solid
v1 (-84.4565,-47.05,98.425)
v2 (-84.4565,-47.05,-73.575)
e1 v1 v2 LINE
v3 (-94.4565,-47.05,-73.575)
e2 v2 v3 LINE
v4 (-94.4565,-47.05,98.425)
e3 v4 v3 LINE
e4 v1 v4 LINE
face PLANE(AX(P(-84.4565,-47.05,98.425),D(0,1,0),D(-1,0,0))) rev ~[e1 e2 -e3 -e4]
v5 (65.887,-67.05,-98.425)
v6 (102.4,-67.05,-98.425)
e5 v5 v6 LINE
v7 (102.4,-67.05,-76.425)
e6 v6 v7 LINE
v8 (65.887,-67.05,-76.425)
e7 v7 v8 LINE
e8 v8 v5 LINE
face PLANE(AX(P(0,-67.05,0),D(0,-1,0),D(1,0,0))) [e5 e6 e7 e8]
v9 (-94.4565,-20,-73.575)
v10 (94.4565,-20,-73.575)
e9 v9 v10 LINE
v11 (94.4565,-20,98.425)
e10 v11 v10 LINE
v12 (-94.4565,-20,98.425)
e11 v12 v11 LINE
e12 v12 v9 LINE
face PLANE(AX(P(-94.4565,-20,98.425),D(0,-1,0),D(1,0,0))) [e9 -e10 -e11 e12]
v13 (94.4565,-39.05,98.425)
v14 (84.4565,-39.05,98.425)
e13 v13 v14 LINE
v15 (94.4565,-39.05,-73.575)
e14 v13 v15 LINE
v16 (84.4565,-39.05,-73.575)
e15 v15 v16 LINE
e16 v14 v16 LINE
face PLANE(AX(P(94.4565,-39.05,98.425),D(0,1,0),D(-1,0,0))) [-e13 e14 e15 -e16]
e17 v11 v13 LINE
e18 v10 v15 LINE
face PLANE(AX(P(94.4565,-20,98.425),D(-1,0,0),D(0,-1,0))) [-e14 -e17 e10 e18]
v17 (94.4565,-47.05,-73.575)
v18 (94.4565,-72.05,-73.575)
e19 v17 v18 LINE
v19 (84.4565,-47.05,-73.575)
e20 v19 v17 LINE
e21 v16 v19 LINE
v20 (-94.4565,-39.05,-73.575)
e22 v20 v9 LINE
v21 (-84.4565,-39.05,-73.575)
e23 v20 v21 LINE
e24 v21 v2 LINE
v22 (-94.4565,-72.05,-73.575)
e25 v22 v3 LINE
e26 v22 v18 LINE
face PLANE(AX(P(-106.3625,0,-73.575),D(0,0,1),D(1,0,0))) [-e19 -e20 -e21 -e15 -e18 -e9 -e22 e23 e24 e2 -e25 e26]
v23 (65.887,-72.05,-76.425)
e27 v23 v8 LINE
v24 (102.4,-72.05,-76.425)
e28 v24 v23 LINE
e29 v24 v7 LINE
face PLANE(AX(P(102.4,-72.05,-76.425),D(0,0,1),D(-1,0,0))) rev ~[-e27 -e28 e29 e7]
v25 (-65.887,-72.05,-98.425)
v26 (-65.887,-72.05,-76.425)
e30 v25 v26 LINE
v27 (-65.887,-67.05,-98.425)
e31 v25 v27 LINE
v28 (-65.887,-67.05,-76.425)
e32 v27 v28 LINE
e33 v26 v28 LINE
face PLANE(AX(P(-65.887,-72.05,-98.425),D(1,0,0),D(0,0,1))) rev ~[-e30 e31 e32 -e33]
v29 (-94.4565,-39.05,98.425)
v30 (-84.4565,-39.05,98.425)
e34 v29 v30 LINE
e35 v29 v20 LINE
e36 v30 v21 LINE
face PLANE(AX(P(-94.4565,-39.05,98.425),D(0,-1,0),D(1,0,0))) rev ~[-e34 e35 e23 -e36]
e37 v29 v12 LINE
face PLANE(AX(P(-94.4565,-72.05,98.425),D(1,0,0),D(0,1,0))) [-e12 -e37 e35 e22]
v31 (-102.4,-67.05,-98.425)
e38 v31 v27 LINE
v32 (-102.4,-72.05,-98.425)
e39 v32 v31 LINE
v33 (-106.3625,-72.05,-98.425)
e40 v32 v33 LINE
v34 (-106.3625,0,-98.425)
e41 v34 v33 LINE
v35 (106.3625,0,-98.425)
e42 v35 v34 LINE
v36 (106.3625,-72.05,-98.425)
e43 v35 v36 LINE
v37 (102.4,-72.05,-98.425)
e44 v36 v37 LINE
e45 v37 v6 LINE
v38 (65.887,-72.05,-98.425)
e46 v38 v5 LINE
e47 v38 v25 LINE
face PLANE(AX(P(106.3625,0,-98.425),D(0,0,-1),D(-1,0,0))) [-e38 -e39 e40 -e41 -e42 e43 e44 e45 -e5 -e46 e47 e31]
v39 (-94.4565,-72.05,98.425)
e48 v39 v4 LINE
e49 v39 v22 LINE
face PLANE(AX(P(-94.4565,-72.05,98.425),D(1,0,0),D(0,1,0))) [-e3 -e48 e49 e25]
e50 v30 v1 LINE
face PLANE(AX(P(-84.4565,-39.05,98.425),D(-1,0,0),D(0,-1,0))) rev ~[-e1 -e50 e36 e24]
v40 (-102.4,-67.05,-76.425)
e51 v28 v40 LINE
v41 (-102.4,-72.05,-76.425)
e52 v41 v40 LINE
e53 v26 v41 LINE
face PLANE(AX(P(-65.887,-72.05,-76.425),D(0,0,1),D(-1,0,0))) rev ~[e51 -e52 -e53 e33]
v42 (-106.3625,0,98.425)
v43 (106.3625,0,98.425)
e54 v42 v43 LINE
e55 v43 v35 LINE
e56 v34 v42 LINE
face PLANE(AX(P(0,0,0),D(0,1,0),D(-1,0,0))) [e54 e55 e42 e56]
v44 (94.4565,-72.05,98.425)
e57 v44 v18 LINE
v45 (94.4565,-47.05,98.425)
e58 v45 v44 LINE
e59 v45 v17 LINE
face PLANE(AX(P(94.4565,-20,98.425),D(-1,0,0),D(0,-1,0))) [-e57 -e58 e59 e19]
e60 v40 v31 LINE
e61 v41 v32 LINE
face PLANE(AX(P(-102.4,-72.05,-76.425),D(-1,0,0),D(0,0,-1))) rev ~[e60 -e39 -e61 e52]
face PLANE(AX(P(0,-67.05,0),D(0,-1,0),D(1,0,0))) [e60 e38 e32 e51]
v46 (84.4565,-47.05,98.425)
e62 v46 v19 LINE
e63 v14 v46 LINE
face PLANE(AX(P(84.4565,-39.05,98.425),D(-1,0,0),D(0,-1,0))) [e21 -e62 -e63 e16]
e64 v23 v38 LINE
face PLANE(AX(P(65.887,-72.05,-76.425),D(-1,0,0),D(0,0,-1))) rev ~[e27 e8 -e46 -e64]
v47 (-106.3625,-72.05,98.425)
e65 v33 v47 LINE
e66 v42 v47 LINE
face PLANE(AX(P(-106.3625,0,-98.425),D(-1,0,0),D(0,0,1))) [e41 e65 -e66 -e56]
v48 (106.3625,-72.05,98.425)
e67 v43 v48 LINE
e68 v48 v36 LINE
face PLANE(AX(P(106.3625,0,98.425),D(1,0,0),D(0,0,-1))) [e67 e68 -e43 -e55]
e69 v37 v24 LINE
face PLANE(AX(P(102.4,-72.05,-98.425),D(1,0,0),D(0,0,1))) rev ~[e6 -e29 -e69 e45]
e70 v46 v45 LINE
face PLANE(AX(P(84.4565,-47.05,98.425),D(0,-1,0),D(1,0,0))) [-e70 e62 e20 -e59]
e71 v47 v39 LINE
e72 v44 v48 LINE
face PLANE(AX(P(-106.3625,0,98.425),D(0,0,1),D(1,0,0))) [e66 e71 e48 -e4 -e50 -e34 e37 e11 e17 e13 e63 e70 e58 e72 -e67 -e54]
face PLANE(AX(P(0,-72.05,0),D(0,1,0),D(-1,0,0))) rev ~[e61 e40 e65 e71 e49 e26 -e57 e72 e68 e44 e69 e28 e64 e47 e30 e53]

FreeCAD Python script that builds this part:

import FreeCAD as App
import Part
import Sketcher

V = App.Vector

doc = App.newDocument("Part")
body = doc.addObject("PartDesign::Body", "Body")

sketch1 = body.newObject("Sketcher::SketchObject", "Sketch")
sketch1.AttachmentSupport = (doc.getObject("XZ_Plane"), [""])
sketch1.MapMode = "FlatFace"
sketch1.addGeometry([
    Part.LineSegment(V(106, 98, 0), V(106, -98, 0)),
    Part.LineSegment(V(106, -98, 0), V(-106, -98, 0)),
    Part.LineSegment(V(-106, -98, 0), V(-106, 98, 0)),
    Part.LineSegment(V(-106, 98, 0), V(106, 98, 0)),
], False)
sketch1.addConstraint([
    Sketcher.Constraint("Coincident", 0, 2, 1, 1),
    Sketcher.Constraint("Coincident", 1, 2, 2, 1),
    Sketcher.Constraint("Coincident", 2, 2, 3, 1),
    Sketcher.Constraint("Coincident", 3, 2, 0, 1),
    Sketcher.Constraint("Vertical", 0),
    Sketcher.Constraint("Horizontal", 1),
    Sketcher.Constraint("Vertical", 2),
    Sketcher.Constraint("Horizontal", 3),
    Sketcher.Constraint("Symmetric", 0, 2, 2, 2, -1, 1),
    Sketcher.Constraint("DistanceY", 0, 2, 0, 1, 196.85),
    Sketcher.Constraint("DistanceX", 1, 2, 1, 1, 212.725),
])
pad1 = body.newObject("PartDesign::Pad", "Pad")
pad1.Profile = sketch1
pad1.Length = 72.05

sketch2 = body.newObject("Sketcher::SketchObject", "Sketch001")
sketch2.AttachmentSupport = (doc.getObject("XY_Plane"), [""])
sketch2.MapMode = "FlatFace"
sketch2.AttachmentOffset = App.Placement(V(0, 0, 98.425), App.Rotation())
sketch2.addGeometry([
    Part.LineSegment(V(-94, -20, 0), V(-94, -72, 0)),
    Part.LineSegment(V(-94, -72, 0), V(94, -72, 0)),
    Part.LineSegment(V(94, -72, 0), V(94, -20, 0)),
    Part.LineSegment(V(94, -20, 0), V(-94, -20, 0)),
], False)
sketch2.addConstraint([
    Sketcher.Constraint("Coincident", 0, 2, 1, 1),
    Sketcher.Constraint("Coincident", 1, 2, 2, 1),
    Sketcher.Constraint("Coincident", 2, 2, 3, 1),
    Sketcher.Constraint("Coincident", 3, 2, 0, 1),
    Sketcher.Constraint("Vertical", 0),
    Sketcher.Constraint("Horizontal", 1),
    Sketcher.Constraint("Vertical", 2),
    Sketcher.Constraint("Horizontal", 3),
    Sketcher.Constraint("DistanceY", 2, 2, -1, 1, 20.0),
    Sketcher.Constraint("DistanceX", 1, 1, 1, 2, 188.913),
    Sketcher.Constraint("DistanceY", 0, 2, 0, 1, 52.05),
    Sketcher.Constraint("DistanceX", 0, 2, -1, 1, 94.4565),
])
pocket1 = body.newObject("PartDesign::Pocket", "Pocket")
pocket1.Profile = sketch2
pocket1.Length = 172

sketch3 = body.newObject("Sketcher::SketchObject", "Sketch002")
sketch3.AttachmentSupport = (doc.getObject("XY_Plane"), [""])
sketch3.MapMode = "FlatFace"
sketch3.AttachmentOffset = App.Placement(V(0, 0, 98.425), App.Rotation())
sketch3.addGeometry([
    Part.LineSegment(V(94, -47, 0), V(94, -39, 0)),
    Part.LineSegment(V(94, -39, 0), V(84, -39, 0)),
    Part.LineSegment(V(84, -39, 0), V(84, -47, 0)),
    Part.LineSegment(V(84, -47, 0), V(94, -47, 0)),
    Part.LineSegment(V(-94, -39, 0), V(-94, -47, 0)),
    Part.LineSegment(V(-94, -47, 0), V(-84, -47, 0)),
    Part.LineSegment(V(-84, -47, 0), V(-84, -39, 0)),
    Part.LineSegment(V(-84, -39, 0), V(-94, -39, 0)),
], False)
sketch3.addConstraint([
    Sketcher.Constraint("Coincident", 0, 2, 1, 1),
    Sketcher.Constraint("Coincident", 1, 2, 2, 1),
    Sketcher.Constraint("Coincident", 2, 2, 3, 1),
    Sketcher.Constraint("Coincident", 3, 2, 0, 1),
    Sketcher.Constraint("Coincident", 4, 2, 5, 1),
    Sketcher.Constraint("Coincident", 5, 2, 6, 1),
    Sketcher.Constraint("Coincident", 6, 2, 7, 1),
    Sketcher.Constraint("Coincident", 7, 2, 4, 1),
    Sketcher.Constraint("Vertical", 0),
    Sketcher.Constraint("Horizontal", 1),
    Sketcher.Constraint("Vertical", 2),
    Sketcher.Constraint("Horizontal", 3),
    Sketcher.Constraint("Vertical", 4),
    Sketcher.Constraint("Horizontal", 5),
    Sketcher.Constraint("Vertical", 6),
    Sketcher.Constraint("Horizontal", 7),
    Sketcher.Constraint("Symmetric", 3, 2, 4, 2, -2),
    Sketcher.Constraint("Symmetric", 1, 2, 6, 2, -2),
    Sketcher.Constraint("DistanceX", 1, 2, 1, 1, 10.0),
    Sketcher.Constraint("DistanceY", 0, 1, 0, 2, 8.0),
    Sketcher.Constraint("DistanceY", 0, 2, -1, 1, 39.05),
    Sketcher.Constraint("DistanceX", 4, 2, 2, 2, 178.913),
])
pad2 = body.newObject("PartDesign::Pad", "Pad001")
pad2.Profile = sketch3
pad2.Length = 172
pad2.Reversed = True

sketch4 = body.newObject("Sketcher::SketchObject", "Sketch003")
sketch4.AttachmentSupport = (doc.getObject("XZ_Plane"), [""])
sketch4.MapMode = "FlatFace"
sketch4.AttachmentOffset = App.Placement(V(0, 0, 72.05), App.Rotation())
sketch4.addGeometry([
    Part.LineSegment(V(-102, -76, 0), V(-102, -98, 0)),
    Part.LineSegment(V(-102, -98, 0), V(-66, -98, 0)),
    Part.LineSegment(V(-66, -98, 0), V(-66, -76, 0)),
    Part.LineSegment(V(-66, -76, 0), V(-102, -76, 0)),
    Part.LineSegment(V(66, -76, 0), V(66, -98, 0)),
    Part.LineSegment(V(66, -98, 0), V(102, -98, 0)),
    Part.LineSegment(V(102, -98, 0), V(102, -76, 0)),
    Part.LineSegment(V(102, -76, 0), V(66, -76, 0)),
], False)
sketch4.addConstraint([
    Sketcher.Constraint("Coincident", 0, 2, 1, 1),
    Sketcher.Constraint("Coincident", 1, 2, 2, 1),
    Sketcher.Constraint("Coincident", 2, 2, 3, 1),
    Sketcher.Constraint("Coincident", 3, 2, 0, 1),
    Sketcher.Constraint("Coincident", 4, 2, 5, 1),
    Sketcher.Constraint("Coincident", 5, 2, 6, 1),
    Sketcher.Constraint("Coincident", 6, 2, 7, 1),
    Sketcher.Constraint("Coincident", 7, 2, 4, 1),
    Sketcher.Constraint("Vertical", 0),
    Sketcher.Constraint("Horizontal", 1),
    Sketcher.Constraint("Vertical", 2),
    Sketcher.Constraint("Horizontal", 3),
    Sketcher.Constraint("Vertical", 4),
    Sketcher.Constraint("Horizontal", 5),
    Sketcher.Constraint("Vertical", 6),
    Sketcher.Constraint("Horizontal", 7),
    Sketcher.Constraint("Symmetric", 1, 2, 4, 2, -2),
    Sketcher.Constraint("Symmetric", 3, 2, 6, 2, -2),
    Sketcher.Constraint("DistanceY", 0, 2, 0, 1, 22.0),
    Sketcher.Constraint("DistanceX", 1, 1, 1, 2, 36.513),
    Sketcher.Constraint("DistanceX", 1, 2, 4, 2, 131.774),
    Sketcher.Constraint("DistanceY", 0, 2, -1, 1, 98.425),
])
pocket2 = body.newObject("PartDesign::Pocket", "Pocket001")
pocket2.Profile = sketch4
pocket2.Length = 5

doc.recompute()
